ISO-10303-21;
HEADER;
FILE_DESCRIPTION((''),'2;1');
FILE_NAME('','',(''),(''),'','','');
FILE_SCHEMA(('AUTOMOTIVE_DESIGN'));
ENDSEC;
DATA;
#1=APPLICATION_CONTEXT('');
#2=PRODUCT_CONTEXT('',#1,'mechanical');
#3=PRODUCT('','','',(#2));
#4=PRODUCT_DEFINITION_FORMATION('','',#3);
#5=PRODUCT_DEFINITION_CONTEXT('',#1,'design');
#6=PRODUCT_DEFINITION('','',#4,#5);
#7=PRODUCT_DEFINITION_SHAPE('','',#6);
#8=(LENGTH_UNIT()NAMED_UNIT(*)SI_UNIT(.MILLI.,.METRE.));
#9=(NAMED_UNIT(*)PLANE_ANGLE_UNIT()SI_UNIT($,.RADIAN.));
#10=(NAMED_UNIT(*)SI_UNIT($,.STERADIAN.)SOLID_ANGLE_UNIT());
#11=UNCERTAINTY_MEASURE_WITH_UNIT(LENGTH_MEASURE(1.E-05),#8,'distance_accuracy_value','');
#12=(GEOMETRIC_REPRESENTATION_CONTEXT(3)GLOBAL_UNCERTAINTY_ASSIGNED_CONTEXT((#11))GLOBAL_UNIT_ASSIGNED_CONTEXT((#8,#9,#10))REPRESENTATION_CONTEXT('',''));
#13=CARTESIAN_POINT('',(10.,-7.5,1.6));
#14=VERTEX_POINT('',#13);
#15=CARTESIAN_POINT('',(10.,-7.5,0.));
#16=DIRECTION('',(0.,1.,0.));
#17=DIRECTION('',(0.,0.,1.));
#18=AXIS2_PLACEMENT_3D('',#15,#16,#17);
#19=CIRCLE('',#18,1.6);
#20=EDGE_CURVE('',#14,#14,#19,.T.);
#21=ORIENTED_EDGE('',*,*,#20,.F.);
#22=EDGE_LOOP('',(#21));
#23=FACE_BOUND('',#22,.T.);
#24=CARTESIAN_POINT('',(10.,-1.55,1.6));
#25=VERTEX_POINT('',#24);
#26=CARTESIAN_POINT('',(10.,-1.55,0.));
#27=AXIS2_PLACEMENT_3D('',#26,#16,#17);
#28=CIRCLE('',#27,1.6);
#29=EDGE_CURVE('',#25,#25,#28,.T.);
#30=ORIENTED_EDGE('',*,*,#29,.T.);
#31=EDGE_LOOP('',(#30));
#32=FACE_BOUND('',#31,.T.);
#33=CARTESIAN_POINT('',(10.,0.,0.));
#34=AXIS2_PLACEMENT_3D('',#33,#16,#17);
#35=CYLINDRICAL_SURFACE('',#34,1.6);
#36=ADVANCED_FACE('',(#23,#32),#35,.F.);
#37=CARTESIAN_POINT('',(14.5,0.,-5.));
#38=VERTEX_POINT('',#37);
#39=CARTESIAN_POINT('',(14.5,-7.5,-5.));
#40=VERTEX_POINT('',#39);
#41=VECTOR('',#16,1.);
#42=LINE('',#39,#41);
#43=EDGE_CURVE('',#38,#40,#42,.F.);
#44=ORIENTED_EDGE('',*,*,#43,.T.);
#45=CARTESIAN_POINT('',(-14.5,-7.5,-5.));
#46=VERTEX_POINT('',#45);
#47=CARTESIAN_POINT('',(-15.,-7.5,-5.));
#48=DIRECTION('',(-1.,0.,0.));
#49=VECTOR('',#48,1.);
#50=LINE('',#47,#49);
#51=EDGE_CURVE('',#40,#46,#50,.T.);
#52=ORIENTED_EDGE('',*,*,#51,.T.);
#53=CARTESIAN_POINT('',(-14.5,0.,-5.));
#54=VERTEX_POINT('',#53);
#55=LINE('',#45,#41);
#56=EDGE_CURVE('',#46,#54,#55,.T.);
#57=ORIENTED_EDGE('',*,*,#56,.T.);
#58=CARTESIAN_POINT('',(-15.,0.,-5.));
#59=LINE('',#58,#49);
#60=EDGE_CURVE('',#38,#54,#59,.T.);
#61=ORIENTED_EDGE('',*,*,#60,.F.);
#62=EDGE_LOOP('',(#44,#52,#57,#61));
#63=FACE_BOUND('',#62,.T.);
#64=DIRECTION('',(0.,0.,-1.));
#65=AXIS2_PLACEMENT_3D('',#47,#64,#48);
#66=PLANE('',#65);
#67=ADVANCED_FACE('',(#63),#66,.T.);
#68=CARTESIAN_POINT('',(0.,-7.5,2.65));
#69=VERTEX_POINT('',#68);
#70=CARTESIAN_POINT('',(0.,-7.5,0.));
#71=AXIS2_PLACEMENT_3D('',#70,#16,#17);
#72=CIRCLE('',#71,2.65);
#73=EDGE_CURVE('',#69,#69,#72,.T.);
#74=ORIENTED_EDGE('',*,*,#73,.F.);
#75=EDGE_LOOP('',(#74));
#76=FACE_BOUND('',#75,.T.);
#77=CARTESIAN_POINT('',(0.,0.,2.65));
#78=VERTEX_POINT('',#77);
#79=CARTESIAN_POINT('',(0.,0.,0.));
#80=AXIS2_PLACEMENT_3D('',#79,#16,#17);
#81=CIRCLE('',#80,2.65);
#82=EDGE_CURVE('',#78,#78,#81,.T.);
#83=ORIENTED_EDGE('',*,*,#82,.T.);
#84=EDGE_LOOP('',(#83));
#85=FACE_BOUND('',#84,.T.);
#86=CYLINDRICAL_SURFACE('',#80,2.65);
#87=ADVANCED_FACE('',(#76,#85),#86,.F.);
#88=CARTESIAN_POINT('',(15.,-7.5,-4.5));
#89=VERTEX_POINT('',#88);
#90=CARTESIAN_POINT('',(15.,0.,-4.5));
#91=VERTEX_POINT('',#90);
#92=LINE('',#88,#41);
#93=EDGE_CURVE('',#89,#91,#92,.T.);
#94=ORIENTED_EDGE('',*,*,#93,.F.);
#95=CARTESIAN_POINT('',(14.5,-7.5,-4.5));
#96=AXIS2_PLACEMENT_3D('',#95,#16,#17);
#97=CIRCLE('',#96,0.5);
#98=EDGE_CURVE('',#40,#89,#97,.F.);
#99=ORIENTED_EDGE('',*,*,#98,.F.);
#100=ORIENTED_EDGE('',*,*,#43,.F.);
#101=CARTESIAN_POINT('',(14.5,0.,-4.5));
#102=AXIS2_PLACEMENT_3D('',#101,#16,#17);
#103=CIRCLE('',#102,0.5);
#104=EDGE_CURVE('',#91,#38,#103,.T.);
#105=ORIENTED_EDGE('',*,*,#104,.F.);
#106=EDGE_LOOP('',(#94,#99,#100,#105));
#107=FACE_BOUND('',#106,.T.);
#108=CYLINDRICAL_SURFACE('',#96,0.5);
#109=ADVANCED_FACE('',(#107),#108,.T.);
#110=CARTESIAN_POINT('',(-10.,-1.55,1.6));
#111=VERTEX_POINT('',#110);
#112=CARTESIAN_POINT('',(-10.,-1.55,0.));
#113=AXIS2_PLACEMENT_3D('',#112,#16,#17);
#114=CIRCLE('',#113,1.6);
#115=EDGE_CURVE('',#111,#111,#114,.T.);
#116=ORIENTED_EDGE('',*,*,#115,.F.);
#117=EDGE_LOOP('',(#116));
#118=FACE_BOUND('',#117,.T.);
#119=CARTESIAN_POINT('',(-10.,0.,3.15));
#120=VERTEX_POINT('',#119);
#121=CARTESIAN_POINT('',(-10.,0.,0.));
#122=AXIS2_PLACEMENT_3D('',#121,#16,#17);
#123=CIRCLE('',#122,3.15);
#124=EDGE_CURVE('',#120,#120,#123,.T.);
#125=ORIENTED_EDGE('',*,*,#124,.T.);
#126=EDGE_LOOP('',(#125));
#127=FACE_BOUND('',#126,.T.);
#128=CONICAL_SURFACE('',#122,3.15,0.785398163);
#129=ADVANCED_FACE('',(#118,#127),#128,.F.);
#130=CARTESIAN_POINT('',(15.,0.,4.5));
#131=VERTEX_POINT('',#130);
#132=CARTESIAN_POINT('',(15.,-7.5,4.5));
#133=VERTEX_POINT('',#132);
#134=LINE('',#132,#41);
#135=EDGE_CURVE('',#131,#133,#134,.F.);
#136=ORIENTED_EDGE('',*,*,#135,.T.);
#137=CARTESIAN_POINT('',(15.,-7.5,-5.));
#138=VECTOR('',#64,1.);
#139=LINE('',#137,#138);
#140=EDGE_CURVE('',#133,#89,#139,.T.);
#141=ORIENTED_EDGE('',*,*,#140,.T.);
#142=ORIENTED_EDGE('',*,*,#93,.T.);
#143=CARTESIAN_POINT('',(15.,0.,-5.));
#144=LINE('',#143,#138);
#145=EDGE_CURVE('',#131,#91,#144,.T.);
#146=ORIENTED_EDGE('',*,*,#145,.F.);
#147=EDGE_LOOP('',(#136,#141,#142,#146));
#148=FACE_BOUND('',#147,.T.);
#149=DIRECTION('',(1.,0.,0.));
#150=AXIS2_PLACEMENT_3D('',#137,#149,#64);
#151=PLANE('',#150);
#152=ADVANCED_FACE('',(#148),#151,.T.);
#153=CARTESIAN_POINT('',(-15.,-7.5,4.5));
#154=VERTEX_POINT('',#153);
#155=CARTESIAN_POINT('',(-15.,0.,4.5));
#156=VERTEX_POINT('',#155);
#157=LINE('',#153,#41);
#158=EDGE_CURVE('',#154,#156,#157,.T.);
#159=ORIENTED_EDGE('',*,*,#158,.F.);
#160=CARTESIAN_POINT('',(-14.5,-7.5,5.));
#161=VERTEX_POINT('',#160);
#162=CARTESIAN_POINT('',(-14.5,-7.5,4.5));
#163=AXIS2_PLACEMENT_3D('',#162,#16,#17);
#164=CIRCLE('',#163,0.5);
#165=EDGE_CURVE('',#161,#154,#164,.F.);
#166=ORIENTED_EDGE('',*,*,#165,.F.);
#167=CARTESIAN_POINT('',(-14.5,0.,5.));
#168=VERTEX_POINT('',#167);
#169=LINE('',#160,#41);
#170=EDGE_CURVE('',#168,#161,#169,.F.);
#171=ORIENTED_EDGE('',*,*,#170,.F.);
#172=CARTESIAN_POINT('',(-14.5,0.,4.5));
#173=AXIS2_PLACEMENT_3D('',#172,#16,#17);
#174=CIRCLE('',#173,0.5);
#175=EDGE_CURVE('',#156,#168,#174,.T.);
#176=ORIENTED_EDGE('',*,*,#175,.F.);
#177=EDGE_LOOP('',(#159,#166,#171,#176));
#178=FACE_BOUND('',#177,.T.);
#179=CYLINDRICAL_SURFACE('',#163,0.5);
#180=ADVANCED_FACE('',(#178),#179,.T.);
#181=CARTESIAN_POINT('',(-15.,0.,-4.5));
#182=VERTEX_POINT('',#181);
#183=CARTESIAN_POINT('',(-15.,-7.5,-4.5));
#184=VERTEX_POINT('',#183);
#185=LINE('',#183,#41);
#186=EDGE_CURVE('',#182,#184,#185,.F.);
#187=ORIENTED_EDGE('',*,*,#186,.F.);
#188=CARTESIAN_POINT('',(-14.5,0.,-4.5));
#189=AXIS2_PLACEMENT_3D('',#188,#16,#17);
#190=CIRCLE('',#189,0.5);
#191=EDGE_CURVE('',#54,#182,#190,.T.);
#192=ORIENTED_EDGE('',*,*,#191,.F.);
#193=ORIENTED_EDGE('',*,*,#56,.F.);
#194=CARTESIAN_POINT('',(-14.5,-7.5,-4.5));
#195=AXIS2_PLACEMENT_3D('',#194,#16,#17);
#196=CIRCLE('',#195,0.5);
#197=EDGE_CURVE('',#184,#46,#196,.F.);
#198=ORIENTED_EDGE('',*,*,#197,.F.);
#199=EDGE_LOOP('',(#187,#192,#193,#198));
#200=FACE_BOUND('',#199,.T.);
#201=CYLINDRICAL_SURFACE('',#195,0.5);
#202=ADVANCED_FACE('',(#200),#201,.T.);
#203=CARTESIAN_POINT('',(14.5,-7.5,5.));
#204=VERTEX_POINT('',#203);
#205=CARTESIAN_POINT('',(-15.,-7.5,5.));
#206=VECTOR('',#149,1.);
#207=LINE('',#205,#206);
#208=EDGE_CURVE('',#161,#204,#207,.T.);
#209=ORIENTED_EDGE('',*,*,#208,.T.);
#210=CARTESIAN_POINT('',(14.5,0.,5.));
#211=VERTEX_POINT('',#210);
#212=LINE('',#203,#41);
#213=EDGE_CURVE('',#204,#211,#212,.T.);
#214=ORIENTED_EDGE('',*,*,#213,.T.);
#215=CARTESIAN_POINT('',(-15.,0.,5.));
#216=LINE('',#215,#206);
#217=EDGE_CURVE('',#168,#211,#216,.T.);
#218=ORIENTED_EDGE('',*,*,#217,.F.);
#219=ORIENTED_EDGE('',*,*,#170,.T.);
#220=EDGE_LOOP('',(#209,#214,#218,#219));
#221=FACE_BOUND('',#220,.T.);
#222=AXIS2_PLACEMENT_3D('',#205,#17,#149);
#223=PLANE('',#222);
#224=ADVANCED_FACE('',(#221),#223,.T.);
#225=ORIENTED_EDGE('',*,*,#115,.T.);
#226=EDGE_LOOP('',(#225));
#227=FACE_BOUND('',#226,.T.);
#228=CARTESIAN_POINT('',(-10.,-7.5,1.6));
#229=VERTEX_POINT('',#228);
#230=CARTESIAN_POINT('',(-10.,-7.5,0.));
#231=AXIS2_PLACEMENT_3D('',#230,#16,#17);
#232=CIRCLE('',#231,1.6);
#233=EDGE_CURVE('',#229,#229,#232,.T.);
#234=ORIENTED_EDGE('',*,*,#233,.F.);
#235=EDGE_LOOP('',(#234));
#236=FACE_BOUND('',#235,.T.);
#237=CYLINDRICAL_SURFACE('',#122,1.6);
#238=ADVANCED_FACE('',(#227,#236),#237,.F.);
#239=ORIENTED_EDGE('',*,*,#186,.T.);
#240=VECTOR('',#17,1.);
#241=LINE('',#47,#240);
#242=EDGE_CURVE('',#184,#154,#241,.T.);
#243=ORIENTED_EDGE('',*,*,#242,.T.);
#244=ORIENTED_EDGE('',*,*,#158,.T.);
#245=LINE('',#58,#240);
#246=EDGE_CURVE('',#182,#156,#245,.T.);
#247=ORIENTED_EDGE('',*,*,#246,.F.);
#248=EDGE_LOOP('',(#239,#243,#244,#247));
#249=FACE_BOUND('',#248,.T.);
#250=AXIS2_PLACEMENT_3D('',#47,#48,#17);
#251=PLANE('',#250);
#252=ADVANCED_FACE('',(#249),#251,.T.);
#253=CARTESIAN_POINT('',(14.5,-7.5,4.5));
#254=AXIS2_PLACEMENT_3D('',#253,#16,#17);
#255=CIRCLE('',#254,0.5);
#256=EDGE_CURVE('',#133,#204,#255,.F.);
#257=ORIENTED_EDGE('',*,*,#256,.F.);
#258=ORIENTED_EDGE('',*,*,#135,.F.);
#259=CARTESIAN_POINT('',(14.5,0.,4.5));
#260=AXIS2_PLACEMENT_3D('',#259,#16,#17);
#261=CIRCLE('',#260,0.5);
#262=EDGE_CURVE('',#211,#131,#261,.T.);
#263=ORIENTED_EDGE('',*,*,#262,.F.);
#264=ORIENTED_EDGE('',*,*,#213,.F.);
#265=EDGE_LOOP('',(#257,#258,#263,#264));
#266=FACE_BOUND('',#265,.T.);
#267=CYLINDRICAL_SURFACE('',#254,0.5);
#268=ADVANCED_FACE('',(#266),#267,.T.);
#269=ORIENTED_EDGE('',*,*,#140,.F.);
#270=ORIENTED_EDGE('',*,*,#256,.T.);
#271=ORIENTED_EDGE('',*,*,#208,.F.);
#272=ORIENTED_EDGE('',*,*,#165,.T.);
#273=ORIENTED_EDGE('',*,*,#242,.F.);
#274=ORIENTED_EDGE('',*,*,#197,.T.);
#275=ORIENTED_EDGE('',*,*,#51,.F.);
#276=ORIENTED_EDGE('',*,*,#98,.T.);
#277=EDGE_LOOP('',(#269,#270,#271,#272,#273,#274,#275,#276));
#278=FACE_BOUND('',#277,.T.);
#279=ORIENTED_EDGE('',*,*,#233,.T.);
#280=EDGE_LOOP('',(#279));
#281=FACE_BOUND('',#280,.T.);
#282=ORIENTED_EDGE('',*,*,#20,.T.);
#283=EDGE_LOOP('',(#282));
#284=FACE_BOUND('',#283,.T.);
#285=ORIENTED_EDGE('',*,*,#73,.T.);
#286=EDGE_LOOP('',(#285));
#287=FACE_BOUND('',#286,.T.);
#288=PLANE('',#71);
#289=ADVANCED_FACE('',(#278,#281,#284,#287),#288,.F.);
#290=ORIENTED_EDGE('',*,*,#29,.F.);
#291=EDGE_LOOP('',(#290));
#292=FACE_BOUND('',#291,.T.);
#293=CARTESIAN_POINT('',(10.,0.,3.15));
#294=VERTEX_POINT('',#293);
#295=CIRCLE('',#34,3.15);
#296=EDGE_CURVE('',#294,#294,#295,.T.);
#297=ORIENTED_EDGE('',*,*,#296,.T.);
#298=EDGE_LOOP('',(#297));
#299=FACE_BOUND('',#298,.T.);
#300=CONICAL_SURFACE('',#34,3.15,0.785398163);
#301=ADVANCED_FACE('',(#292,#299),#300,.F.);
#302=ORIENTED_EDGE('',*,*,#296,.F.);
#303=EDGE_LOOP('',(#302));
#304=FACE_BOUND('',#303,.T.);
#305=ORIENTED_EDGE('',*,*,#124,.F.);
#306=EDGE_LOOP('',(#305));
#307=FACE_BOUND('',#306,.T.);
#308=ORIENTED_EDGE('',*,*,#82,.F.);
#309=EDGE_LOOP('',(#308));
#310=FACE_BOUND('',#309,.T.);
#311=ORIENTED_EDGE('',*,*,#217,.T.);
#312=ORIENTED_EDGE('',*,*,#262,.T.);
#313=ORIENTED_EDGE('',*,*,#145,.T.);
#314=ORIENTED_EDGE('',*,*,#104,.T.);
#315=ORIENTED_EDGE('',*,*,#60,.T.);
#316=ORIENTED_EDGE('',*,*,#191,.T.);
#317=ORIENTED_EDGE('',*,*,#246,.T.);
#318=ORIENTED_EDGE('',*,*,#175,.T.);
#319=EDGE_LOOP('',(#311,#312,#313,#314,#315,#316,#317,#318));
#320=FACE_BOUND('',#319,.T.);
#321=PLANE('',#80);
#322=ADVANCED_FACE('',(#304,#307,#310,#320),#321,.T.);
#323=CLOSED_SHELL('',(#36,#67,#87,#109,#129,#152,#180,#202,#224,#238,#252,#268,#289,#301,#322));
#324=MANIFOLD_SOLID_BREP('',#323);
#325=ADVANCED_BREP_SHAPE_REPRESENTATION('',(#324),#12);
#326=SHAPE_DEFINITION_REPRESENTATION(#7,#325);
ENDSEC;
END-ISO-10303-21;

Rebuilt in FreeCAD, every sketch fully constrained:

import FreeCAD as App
import Part
import Sketcher
from FreeCAD import Vector
Q = App.Units.Quantity


def edges_at(feature, points):
    """Names of the edges that pass closest to the given points."""
    edges = feature.Shape.Edges
    near = lambda p: min(range(len(edges)), key=lambda i: edges[i].distToShape(Part.Vertex(*p))[0])
    return sorted({f"Edge{near(p) + 1}" for p in points})


def add_polygon(sketch, points):
    """Adds a closed chain of lines whose ends are joined by coincident constraints."""
    first, n = sketch.GeometryCount, len(points)
    for a, b in zip(points, points[1:] + points[:1]):
        sketch.addGeometry(Part.LineSegment(App.Vector(*a, 0), App.Vector(*b, 0)), False)
    for i in range(n):
        sketch.addConstraint(Sketcher.Constraint("Coincident", first + i, 2, first + (i + 1) % n, 1))

doc = App.newDocument("Part")
body = doc.addObject("PartDesign::Body", "Body")

# Sketch on XZ plane
sketch1 = body.newObject("Sketcher::SketchObject", "Sketch")
sketch1.AttachmentSupport = (doc.getObject("XZ_Plane"), [""])
sketch1.MapMode = "FlatFace"
add_polygon(sketch1, [(-15, -5), (-15, 5), (15, 5), (15, -5)])  # lines 0-3
sketch1.addConstraint([
    Sketcher.Constraint("Vertical", 0),
    Sketcher.Constraint("Horizontal", 1),
    Sketcher.Constraint("Vertical", 2),
    Sketcher.Constraint("Horizontal", 3),
    Sketcher.Constraint("Symmetric", 0, 2, 2, 2, -1, 1),
    Sketcher.Constraint("DistanceX", 1, 1, 1, 2, Q("30 mm")),
    Sketcher.Constraint("DistanceY", 0, 1, 0, 2, Q("10 mm")),
])
pad1 = body.newObject("PartDesign::Pad", "Pad")
pad1.Profile = sketch1
pad1.Length = 7.5

# Sketch on XZ plane
sketch2 = body.newObject("Sketcher::SketchObject", "Sketch001")
sketch2.AttachmentSupport = (doc.getObject("XZ_Plane"), [""])
sketch2.MapMode = "FlatFace"
sketch2.addGeometry([
    Part.Circle(Vector(-10, 0, 0), Vector(0, 0, 1), 1.6),
    Part.Circle(Vector(10, 0, 0), Vector(0, 0, 1), 1.6),
], False)
sketch2.addConstraint([
    Sketcher.Constraint("Equal", 0, 1),
    Sketcher.Constraint("Symmetric", 0, 3, 1, 3, -1, 1),
    Sketcher.Constraint("PointOnObject", 0, 3, -1),
    Sketcher.Constraint("Diameter", 0, Q("3.2 mm")),
    Sketcher.Constraint("DistanceX", 0, 3, -1, 1, Q("10 mm")),
])
doc.recompute()
hole = body.newObject("PartDesign::Hole", "Hole")
hole.Profile = sketch2
hole.ThreadType = "None"
hole.Diameter = 3.2
hole.DepthType = "ThroughAll"
hole.HoleCutType = "Countersink"
hole.HoleCutDiameter = 6.3
hole.HoleCutCountersinkAngle = 90
hole.Reversed = True

# Sketch on XZ plane
sketch3 = body.newObject("Sketcher::SketchObject", "Sketch002")
sketch3.AttachmentSupport = (doc.getObject("XZ_Plane"), [""])
sketch3.MapMode = "FlatFace"
sketch3.addGeometry(Part.Circle(Vector(0, 0, 0), Vector(0, 0, 1), 2.65), False)
sketch3.addConstraint([
    Sketcher.Constraint("Coincident", 0, 3, -1, 1),
    Sketcher.Constraint("Diameter", 0, Q("5.3 mm")),
])
doc.recompute()
hole2 = body.newObject("PartDesign::Hole", "Hole001")
hole2.Profile = sketch3
hole2.ThreadType = "None"
hole2.Diameter = 5.3
hole2.DepthType = "ThroughAll"
hole2.Reversed = True
doc.recompute()

fillet = body.newObject("PartDesign::Fillet", "Fillet")
fillet.Base = (hole2, edges_at(hole2, [
    (-15, -3.75, -5),
    (15, -3.75, -5),
    (15, -3.75, 5),
    (-15, -3.75, 5),
]))
fillet.Radius = 0.5

doc.recompute()
